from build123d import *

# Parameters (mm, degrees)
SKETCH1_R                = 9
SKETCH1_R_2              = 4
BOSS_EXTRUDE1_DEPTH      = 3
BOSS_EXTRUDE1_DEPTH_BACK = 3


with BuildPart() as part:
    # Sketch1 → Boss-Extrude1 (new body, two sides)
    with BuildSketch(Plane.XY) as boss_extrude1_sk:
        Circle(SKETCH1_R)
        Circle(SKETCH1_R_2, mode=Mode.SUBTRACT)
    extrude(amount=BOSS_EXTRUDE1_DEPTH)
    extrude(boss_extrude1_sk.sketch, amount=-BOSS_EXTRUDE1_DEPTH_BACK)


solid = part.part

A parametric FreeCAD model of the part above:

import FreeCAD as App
import Part
import Sketcher
Q = App.Units.Quantity

doc = App.newDocument("Part")
body = doc.addObject("PartDesign::Body", "Body")

# Sketch on XY plane
sketch1 = body.newObject("Sketcher::SketchObject", "Sketch")
sketch1.AttachmentSupport = (doc.getObject("XY_Plane"), [""])
sketch1.MapMode = "FlatFace"
sketch1.addGeometry([
    Part.Circle(App.Vector(0, 0, 0), App.Vector(0, 0, 1), 9),
    Part.Circle(App.Vector(0, 0, 0), App.Vector(0, 0, 1), 4),
], False)
sketch1.addConstraint([
    Sketcher.Constraint("Coincident", 0, 3, -1, 1),
    Sketcher.Constraint("Coincident", 1, 3, -1, 1),
    Sketcher.Constraint("Diameter", 0, Q("18 mm")),
    Sketcher.Constraint("Diameter", 1, Q("8 mm")),
])
pad1 = body.newObject("PartDesign::Pad", "Pad")
pad1.Profile = sketch1
pad1.Type = "TwoLengths"
pad1.Length = 3
pad1.Length2 = 3

doc.recompute()
